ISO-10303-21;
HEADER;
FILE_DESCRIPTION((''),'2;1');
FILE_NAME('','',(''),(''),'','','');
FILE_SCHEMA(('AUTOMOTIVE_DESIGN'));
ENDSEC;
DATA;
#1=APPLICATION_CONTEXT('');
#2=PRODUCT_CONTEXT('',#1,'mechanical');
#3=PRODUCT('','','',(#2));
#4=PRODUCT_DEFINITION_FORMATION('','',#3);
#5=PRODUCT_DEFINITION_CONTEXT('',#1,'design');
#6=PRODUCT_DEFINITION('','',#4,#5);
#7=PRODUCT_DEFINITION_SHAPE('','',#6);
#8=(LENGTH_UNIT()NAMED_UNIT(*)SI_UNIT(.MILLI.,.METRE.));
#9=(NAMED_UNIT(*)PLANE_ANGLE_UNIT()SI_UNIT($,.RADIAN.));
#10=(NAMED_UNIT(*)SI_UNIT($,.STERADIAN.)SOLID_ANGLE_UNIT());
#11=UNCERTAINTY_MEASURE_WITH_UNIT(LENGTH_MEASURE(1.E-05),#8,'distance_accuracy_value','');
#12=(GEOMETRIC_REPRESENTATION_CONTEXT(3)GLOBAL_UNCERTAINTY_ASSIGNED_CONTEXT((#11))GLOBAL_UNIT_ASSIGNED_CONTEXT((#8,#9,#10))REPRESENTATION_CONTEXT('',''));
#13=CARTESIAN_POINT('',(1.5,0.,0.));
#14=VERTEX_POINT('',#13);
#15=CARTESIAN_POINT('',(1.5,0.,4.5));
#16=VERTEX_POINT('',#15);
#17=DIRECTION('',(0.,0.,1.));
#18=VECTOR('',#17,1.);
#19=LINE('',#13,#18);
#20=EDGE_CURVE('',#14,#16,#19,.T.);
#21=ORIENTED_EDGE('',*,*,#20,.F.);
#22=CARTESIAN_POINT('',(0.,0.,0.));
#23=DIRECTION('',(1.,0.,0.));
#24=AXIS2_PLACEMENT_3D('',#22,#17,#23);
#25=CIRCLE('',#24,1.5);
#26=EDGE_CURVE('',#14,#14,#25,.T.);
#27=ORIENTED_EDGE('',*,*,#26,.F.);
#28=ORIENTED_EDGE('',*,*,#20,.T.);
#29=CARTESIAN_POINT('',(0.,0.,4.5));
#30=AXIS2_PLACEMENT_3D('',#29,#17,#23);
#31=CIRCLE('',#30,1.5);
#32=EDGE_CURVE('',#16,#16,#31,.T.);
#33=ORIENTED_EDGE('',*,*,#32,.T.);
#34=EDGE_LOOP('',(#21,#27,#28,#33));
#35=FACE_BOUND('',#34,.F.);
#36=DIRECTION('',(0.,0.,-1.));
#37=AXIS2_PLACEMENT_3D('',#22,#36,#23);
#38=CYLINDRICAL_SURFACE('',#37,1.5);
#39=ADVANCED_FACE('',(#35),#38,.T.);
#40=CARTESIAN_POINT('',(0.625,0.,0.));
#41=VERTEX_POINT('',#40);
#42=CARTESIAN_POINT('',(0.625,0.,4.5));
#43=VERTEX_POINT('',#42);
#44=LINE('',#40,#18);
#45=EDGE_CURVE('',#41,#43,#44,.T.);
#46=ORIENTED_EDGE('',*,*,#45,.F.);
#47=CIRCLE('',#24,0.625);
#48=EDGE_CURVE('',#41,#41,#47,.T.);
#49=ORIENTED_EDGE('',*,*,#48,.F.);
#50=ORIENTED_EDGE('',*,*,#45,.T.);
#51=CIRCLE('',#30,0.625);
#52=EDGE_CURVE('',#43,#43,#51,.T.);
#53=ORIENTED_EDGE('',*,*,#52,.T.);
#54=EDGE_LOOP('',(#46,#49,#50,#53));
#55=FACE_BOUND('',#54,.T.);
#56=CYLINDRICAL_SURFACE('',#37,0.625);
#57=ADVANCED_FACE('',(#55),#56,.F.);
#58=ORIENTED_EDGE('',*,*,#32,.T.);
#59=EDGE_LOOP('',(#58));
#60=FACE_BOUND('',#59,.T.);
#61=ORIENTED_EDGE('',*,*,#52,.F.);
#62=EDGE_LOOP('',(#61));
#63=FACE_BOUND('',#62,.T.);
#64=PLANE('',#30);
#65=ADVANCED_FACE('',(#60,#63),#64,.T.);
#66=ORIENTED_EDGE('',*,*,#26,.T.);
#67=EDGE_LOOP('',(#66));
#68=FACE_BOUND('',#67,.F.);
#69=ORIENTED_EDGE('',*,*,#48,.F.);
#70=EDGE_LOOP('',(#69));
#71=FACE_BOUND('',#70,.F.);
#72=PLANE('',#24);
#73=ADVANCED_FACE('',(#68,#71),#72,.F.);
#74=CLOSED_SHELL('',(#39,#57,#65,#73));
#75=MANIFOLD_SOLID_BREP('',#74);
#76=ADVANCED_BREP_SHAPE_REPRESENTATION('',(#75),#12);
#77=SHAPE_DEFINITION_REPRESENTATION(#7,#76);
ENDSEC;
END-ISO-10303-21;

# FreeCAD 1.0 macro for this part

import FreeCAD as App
import Part
import Sketcher
Q = App.Units.Quantity

doc = App.newDocument("Part")
body = doc.addObject("PartDesign::Body", "Body")

# Sketch on XY plane
sketch1 = body.newObject("Sketcher::SketchObject", "Sketch")
sketch1.AttachmentSupport = (doc.getObject("XY_Plane"), [""])
sketch1.MapMode = "FlatFace"
sketch1.addGeometry(Part.Circle(App.Vector(0, 0, 0), App.Vector(0, 0, 1), 1.5), False)
sketch1.addGeometry(Part.Circle(App.Vector(0, 0, 0), App.Vector(0, 0, 1), 0.6), False)
sketch1.addConstraint(Sketcher.Constraint("Coincident", 0, 3, -1, 1))
sketch1.addConstraint(Sketcher.Constraint("Coincident", 1, 3, -1, 1))
sketch1.addConstraint(Sketcher.Constraint("Diameter", 0, Q("3 mm")))
sketch1.addConstraint(Sketcher.Constraint("Diameter", 1, Q("1.25 mm")))
pad1 = body.newObject("PartDesign::Pad", "Pad")
pad1.Profile = sketch1
pad1.Length = 4.5

doc.recompute()
